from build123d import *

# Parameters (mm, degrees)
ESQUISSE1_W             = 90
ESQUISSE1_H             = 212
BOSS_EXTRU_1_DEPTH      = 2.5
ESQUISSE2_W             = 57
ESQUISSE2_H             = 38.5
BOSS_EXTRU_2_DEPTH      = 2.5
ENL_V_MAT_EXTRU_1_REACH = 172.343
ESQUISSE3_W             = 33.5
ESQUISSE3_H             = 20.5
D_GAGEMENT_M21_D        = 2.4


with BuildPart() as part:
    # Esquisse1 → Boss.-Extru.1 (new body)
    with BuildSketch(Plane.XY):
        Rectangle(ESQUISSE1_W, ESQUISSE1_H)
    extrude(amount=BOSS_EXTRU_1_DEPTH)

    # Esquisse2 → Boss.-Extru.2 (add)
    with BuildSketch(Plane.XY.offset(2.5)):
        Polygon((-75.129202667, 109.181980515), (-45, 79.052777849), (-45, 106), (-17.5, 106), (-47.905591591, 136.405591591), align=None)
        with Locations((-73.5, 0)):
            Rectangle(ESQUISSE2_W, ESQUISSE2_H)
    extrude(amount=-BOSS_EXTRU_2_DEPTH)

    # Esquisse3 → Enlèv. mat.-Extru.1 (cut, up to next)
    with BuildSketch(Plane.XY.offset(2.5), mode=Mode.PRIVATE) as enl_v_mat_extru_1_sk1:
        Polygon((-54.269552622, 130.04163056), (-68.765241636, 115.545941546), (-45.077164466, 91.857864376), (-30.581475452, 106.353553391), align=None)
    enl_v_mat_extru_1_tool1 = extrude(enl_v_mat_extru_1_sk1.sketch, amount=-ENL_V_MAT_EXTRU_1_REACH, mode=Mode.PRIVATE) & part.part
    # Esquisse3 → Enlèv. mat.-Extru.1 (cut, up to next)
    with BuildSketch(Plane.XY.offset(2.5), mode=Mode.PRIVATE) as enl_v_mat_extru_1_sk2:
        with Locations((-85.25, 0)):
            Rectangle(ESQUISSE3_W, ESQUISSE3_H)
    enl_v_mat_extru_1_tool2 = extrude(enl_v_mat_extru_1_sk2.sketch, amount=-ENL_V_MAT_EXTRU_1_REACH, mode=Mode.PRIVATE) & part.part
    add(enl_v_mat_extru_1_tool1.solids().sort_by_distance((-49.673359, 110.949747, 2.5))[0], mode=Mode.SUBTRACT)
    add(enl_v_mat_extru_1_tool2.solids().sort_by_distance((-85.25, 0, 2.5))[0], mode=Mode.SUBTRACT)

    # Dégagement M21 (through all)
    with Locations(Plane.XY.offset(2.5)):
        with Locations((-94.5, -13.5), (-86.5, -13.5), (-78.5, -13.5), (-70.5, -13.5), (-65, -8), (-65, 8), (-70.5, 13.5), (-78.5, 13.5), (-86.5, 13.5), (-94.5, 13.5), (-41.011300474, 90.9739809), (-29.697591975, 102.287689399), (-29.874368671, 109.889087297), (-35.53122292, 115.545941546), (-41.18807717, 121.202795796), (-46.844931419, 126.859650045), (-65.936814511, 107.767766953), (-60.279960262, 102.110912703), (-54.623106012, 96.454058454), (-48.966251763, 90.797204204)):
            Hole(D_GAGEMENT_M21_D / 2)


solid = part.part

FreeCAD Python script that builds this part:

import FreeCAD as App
import Part
import Sketcher
Q = App.Units.Quantity

doc = App.newDocument("Part")
params = doc.addObject("Spreadsheet::Sheet", "Params")
for row, (alias, value) in enumerate([
    ("sketch1_width", "90 mm"),
    ("sketch1_height", "212 mm"),
    ("pad1_length", "2.5 mm"),
    ("sketch2_width", "57 mm"),
    ("sketch2_length", "43 mm"),
    ("sketch2_width2", "27.5 mm"),
    ("sketch2_height", "38.5 mm"),
    ("sketch2_length2", "38.5 mm"),
    ("pad2_length", "2.5 mm"),
    ("sketch3_length", "20.5 mm"),
    ("sketch3_length2", "33.5 mm"),
    ("sketch4_width", "33.5 mm"),
    ("sketch4_height", "20.5 mm"),
    ("sketch5_diameter", "2.4 mm"),
    ("hole_diameter", "2.4 mm"),
], start=1):
    params.set(f"A{row}", alias)
    params.set(f"B{row}", "=" + value)
    params.setAlias(f"B{row}", alias)

body = doc.addObject("PartDesign::Body", "Body")

# Sketch on XY plane
sketch1 = body.newObject("Sketcher::SketchObject", "Sketch")
sketch1.AttachmentSupport = (doc.getObject("XY_Plane"), [""])
sketch1.MapMode = "FlatFace"
sketch1.addGeometry(Part.LineSegment(App.Vector(-45, 106, 0), App.Vector(-45, -106, 0)), False)
sketch1.addGeometry(Part.LineSegment(App.Vector(-45, -106, 0), App.Vector(45, -106, 0)), False)
sketch1.addGeometry(Part.LineSegment(App.Vector(45, -106, 0), App.Vector(45, 106, 0)), False)
sketch1.addGeometry(Part.LineSegment(App.Vector(45, 106, 0), App.Vector(-45, 106, 0)), False)
sketch1.addConstraint(Sketcher.Constraint("Coincident", 0, 2, 1, 1))
sketch1.addConstraint(Sketcher.Constraint("Coincident", 1, 2, 2, 1))
sketch1.addConstraint(Sketcher.Constraint("Coincident", 2, 2, 3, 1))
sketch1.addConstraint(Sketcher.Constraint("Coincident", 3, 2, 0, 1))
sketch1.addConstraint(Sketcher.Constraint("Vertical", 0))
sketch1.addConstraint(Sketcher.Constraint("Horizontal", 1))
sketch1.addConstraint(Sketcher.Constraint("Vertical", 2))
sketch1.addConstraint(Sketcher.Constraint("Horizontal", 3))
sketch1.addConstraint(Sketcher.Constraint("Symmetric", 0, 2, 2, 2, -1, 1))
sketch1.addConstraint(Sketcher.Constraint("DistanceX", 1, 1, 1, 2, 90.0))
sketch1.addConstraint(Sketcher.Constraint("DistanceY", 0, 2, 0, 1, 212.0))
sketch1.setExpression("Constraints[9]", "Params.sketch1_width")
sketch1.setExpression("Constraints[10]", "Params.sketch1_height")
pad1 = body.newObject("PartDesign::Pad", "Pad")
pad1.Profile = sketch1
pad1.setExpression("Length", "Params.pad1_length")

# Sketch on XY plane
sketch2 = body.newObject("Sketcher::SketchObject", "Sketch001")
sketch2.AttachmentSupport = (doc.getObject("XY_Plane"), [""])
sketch2.MapMode = "FlatFace"
sketch2.AttachmentOffset = App.Placement(App.Vector(0, 0, 2.5), App.Rotation())
sketch2.addGeometry(Part.LineSegment(App.Vector(-75.129203, 109.181981, 0), App.Vector(-45, 79.052778, 0)), False)
sketch2.addGeometry(Part.LineSegment(App.Vector(-45, 79.052778, 0), App.Vector(-45, 106, 0)), False)
sketch2.addGeometry(Part.LineSegment(App.Vector(-45, 106, 0), App.Vector(-17.5, 106, 0)), False)
sketch2.addGeometry(Part.LineSegment(App.Vector(-17.5, 106, 0), App.Vector(-47.905592, 136.405592, 0)), False)
sketch2.addGeometry(Part.LineSegment(App.Vector(-47.905592, 136.405592, 0), App.Vector(-75.129203, 109.181981, 0)), False)
sketch2.addGeometry(Part.LineSegment(App.Vector(-102, 19.25, 0), App.Vector(-102, -19.25, 0)), False)
sketch2.addGeometry(Part.LineSegment(App.Vector(-102, -19.25, 0), App.Vector(-45, -19.25, 0)), False)
sketch2.addGeometry(Part.LineSegment(App.Vector(-45, -19.25, 0), App.Vector(-45, 19.25, 0)), False)
sketch2.addGeometry(Part.LineSegment(App.Vector(-45, 19.25, 0), App.Vector(-102, 19.25, 0)), False)
sketch2.addConstraint(Sketcher.Constraint("Coincident", 0, 2, 1, 1))
sketch2.addConstraint(Sketcher.Constraint("Coincident", 1, 2, 2, 1))
sketch2.addConstraint(Sketcher.Constraint("Coincident", 2, 2, 3, 1))
sketch2.addConstraint(Sketcher.Constraint("Coincident", 3, 2, 4, 1))
sketch2.addConstraint(Sketcher.Constraint("Coincident", 4, 2, 0, 1))
sketch2.addConstraint(Sketcher.Constraint("Coincident", 5, 2, 6, 1))
sketch2.addConstraint(Sketcher.Constraint("Coincident", 6, 2, 7, 1))
sketch2.addConstraint(Sketcher.Constraint("Coincident", 7, 2, 8, 1))
sketch2.addConstraint(Sketcher.Constraint("Coincident", 8, 2, 5, 1))
sketch2.addConstraint(Sketcher.Constraint("Vertical", 1))
sketch2.addConstraint(Sketcher.Constraint("Horizontal", 2))
sketch2.addConstraint(Sketcher.Constraint("Vertical", 5))
sketch2.addConstraint(Sketcher.Constraint("Horizontal", 6))
sketch2.addConstraint(Sketcher.Constraint("Vertical", 7))
sketch2.addConstraint(Sketcher.Constraint("Horizontal", 8))
sketch2.addConstraint(Sketcher.Constraint("Parallel", 0, 3))
sketch2.addConstraint(Sketcher.Constraint("Perpendicular", 3, 4))
sketch2.addConstraint(Sketcher.Constraint("Vertical", 1, 2, 6, 2))
sketch2.addConstraint(Sketcher.Constraint("DistanceX", 6, 1, 6, 2, 57.0))
sketch2.addConstraint(Sketcher.Constraint("Angle", 0, Q("-45 deg")))
sketch2.addConstraint(Sketcher.Constraint("Distance", 3, 43.0))
sketch2.addConstraint(Sketcher.Constraint("DistanceX", 2, 1, 2, 2, 27.5))
sketch2.addConstraint(Sketcher.Constraint("DistanceY", 5, 2, 5, 1, 38.5))
sketch2.addConstraint(Sketcher.Constraint("DistanceX", 0, 2, -1, 1, 45.0))
sketch2.addConstraint(Sketcher.Constraint("DistanceY", -1, 1, 1, 2, 106.0))
sketch2.addConstraint(Sketcher.Constraint("Distance", 4, 38.5))
sketch2.addConstraint(Sketcher.Constraint("DistanceY", 5, 2, -1, 1, 19.25))
sketch2.setExpression("Constraints[18]", "Params.sketch2_width")
sketch2.setExpression("Constraints[20]", "Params.sketch2_length")
sketch2.setExpression("Constraints[21]", "Params.sketch2_width2")
sketch2.setExpression("Constraints[22]", "Params.sketch2_height")
sketch2.setExpression("Constraints[25]", "Params.sketch2_length2")
pad2 = body.newObject("PartDesign::Pad", "Pad001")
pad2.Profile = sketch2
pad2.setExpression("Length", "Params.pad2_length")
pad2.Reversed = True

# Sketch on XY plane
sketch3 = body.newObject("Sketcher::SketchObject", "Sketch002")
sketch3.AttachmentSupport = (doc.getObject("XY_Plane"), [""])
sketch3.MapMode = "FlatFace"
sketch3.AttachmentOffset = App.Placement(App.Vector(0, 0, 2.5), App.Rotation())
sketch3.addGeometry(Part.LineSegment(App.Vector(-54.269553, 130.041631, 0), App.Vector(-68.765242, 115.545942, 0)), False)
sketch3.addGeometry(Part.LineSegment(App.Vector(-68.765242, 115.545942, 0), App.Vector(-45.077164, 91.857864, 0)), False)
sketch3.addGeometry(Part.LineSegment(App.Vector(-45.077164, 91.857864, 0), App.Vector(-30.581475, 106.353553, 0)), False)
sketch3.addGeometry(Part.LineSegment(App.Vector(-30.581475, 106.353553, 0), App.Vector(-54.269553, 130.041631, 0)), False)
sketch3.addConstraint(Sketcher.Constraint("Coincident", 0, 2, 1, 1))
sketch3.addConstraint(Sketcher.Constraint("Coincident", 1, 2, 2, 1))
sketch3.addConstraint(Sketcher.Constraint("Coincident", 2, 2, 3, 1))
sketch3.addConstraint(Sketcher.Constraint("Coincident", 3, 2, 0, 1))
sketch3.addConstraint(Sketcher.Constraint("Perpendicular", 0, 1))
sketch3.addConstraint(Sketcher.Constraint("Perpendicular", 1, 2))
sketch3.addConstraint(Sketcher.Constraint("Perpendicular", 2, 3))
sketch3.addConstraint(Sketcher.Constraint("Angle", 0, Q("-135 deg")))
sketch3.addConstraint(Sketcher.Constraint("Distance", 0, 20.5))
sketch3.addConstraint(Sketcher.Constraint("Distance", 1, 33.5))
sketch3.addConstraint(Sketcher.Constraint("DistanceX", 0, 2, -1, 1, 68.765242))
sketch3.addConstraint(Sketcher.Constraint("DistanceY", -1, 1, 0, 2, 115.545942))
sketch3.setExpression("Constraints[8]", "Params.sketch3_length")
sketch3.setExpression("Constraints[9]", "Params.sketch3_length2")
pocket1 = body.newObject("PartDesign::Pocket", "Pocket")
pocket1.Profile = sketch3
pocket1.Type = "UpToFirst"

# Sketch on XY plane
sketch4 = body.newObject("Sketcher::SketchObject", "Sketch003")
sketch4.AttachmentSupport = (doc.getObject("XY_Plane"), [""])
sketch4.MapMode = "FlatFace"
sketch4.AttachmentOffset = App.Placement(App.Vector(0, 0, 2.5), App.Rotation())
sketch4.addGeometry(Part.LineSegment(App.Vector(-102, 10.25, 0), App.Vector(-102, -10.25, 0)), False)
sketch4.addGeometry(Part.LineSegment(App.Vector(-102, -10.25, 0), App.Vector(-68.5, -10.25, 0)), False)
sketch4.addGeometry(Part.LineSegment(App.Vector(-68.5, -10.25, 0), App.Vector(-68.5, 10.25, 0)), False)
sketch4.addGeometry(Part.LineSegment(App.Vector(-68.5, 10.25, 0), App.Vector(-102, 10.25, 0)), False)
sketch4.addConstraint(Sketcher.Constraint("Coincident", 0, 2, 1, 1))
sketch4.addConstraint(Sketcher.Constraint("Coincident", 1, 2, 2, 1))
sketch4.addConstraint(Sketcher.Constraint("Coincident", 2, 2, 3, 1))
sketch4.addConstraint(Sketcher.Constraint("Coincident", 3, 2, 0, 1))
sketch4.addConstraint(Sketcher.Constraint("Vertical", 0))
sketch4.addConstraint(Sketcher.Constraint("Horizontal", 1))
sketch4.addConstraint(Sketcher.Constraint("Vertical", 2))
sketch4.addConstraint(Sketcher.Constraint("Horizontal", 3))
sketch4.addConstraint(Sketcher.Constraint("DistanceX", 1, 1, 1, 2, 33.5))
sketch4.addConstraint(Sketcher.Constraint("DistanceY", 0, 2, 0, 1, 20.5))
sketch4.addConstraint(Sketcher.Constraint("DistanceX", 0, 2, -1, 1, 102.0))
sketch4.addConstraint(Sketcher.Constraint("DistanceY", 0, 2, -1, 1, 10.25))
sketch4.setExpression("Constraints[8]", "Params.sketch4_width")
sketch4.setExpression("Constraints[9]", "Params.sketch4_height")
pocket2 = body.newObject("PartDesign::Pocket", "Pocket001")
pocket2.Profile = sketch4
pocket2.Type = "UpToFirst"

# Sketch on XY plane
sketch5 = body.newObject("Sketcher::SketchObject", "Sketch004")
sketch5.AttachmentSupport = (doc.getObject("XY_Plane"), [""])
sketch5.MapMode = "FlatFace"
sketch5.AttachmentOffset = App.Placement(App.Vector(0, 0, 2.5), App.Rotation())
sketch5.addGeometry(Part.Circle(App.Vector(-94.5, -13.5, 0), App.Vector(0, 0, 1), 1.2), False)
sketch5.addGeometry(Part.Circle(App.Vector(-86.5, -13.5, 0), App.Vector(0, 0, 1), 1.2), False)
sketch5.addGeometry(Part.Circle(App.Vector(-78.5, -13.5, 0), App.Vector(0, 0, 1), 1.2), False)
sketch5.addGeometry(Part.Circle(App.Vector(-70.5, -13.5, 0), App.Vector(0, 0, 1), 1.2), False)
sketch5.addGeometry(Part.Circle(App.Vector(-65, -8, 0), App.Vector(0, 0, 1), 1.2), False)
sketch5.addGeometry(Part.Circle(App.Vector(-65, 8, 0), App.Vector(0, 0, 1), 1.2), False)
sketch5.addGeometry(Part.Circle(App.Vector(-70.5, 13.5, 0), App.Vector(0, 0, 1), 1.2), False)
sketch5.addGeometry(Part.Circle(App.Vector(-78.5, 13.5, 0), App.Vector(0, 0, 1), 1.2), False)
sketch5.addGeometry(Part.Circle(App.Vector(-86.5, 13.5, 0), App.Vector(0, 0, 1), 1.2), False)
sketch5.addGeometry(Part.Circle(App.Vector(-94.5, 13.5, 0), App.Vector(0, 0, 1), 1.2), False)
sketch5.addGeometry(Part.Circle(App.Vector(-41.0113, 90.973981, 0), App.Vector(0, 0, 1), 1.2), False)
sketch5.addGeometry(Part.Circle(App.Vector(-29.697592, 102.287689, 0), App.Vector(0, 0, 1), 1.2), False)
sketch5.addGeometry(Part.Circle(App.Vector(-29.874369, 109.889087, 0), App.Vector(0, 0, 1), 1.2), False)
sketch5.addGeometry(Part.Circle(App.Vector(-35.531223, 115.545942, 0), App.Vector(0, 0, 1), 1.2), False)
sketch5.addGeometry(Part.Circle(App.Vector(-41.188077, 121.202796, 0), App.Vector(0, 0, 1), 1.2), False)
sketch5.addGeometry(Part.Circle(App.Vector(-46.844931, 126.85965, 0), App.Vector(0, 0, 1), 1.2), False)
sketch5.addGeometry(Part.Circle(App.Vector(-65.936815, 107.767767, 0), App.Vector(0, 0, 1), 1.2), False)
sketch5.addGeometry(Part.Circle(App.Vector(-60.27996, 102.110913, 0), App.Vector(0, 0, 1), 1.2), False)
sketch5.addGeometry(Part.Circle(App.Vector(-54.623106, 96.454058, 0), App.Vector(0, 0, 1), 1.2), False)
sketch5.addGeometry(Part.Circle(App.Vector(-48.966252, 90.797204, 0), App.Vector(0, 0, 1), 1.2), False)
sketch5.addConstraint(Sketcher.Constraint("Equal", 0, 1))
sketch5.addConstraint(Sketcher.Constraint("Equal", 1, 2))
sketch5.addConstraint(Sketcher.Constraint("Equal", 2, 3))
sketch5.addConstraint(Sketcher.Constraint("Equal", 3, 4))
sketch5.addConstraint(Sketcher.Constraint("Equal", 4, 5))
sketch5.addConstraint(Sketcher.Constraint("Equal", 5, 6))
sketch5.addConstraint(Sketcher.Constraint("Equal", 6, 7))
sketch5.addConstraint(Sketcher.Constraint("Equal", 7, 8))
sketch5.addConstraint(Sketcher.Constraint("Equal", 8, 9))
sketch5.addConstraint(Sketcher.Constraint("Equal", 9, 10))
sketch5.addConstraint(Sketcher.Constraint("Equal", 10, 11))
sketch5.addConstraint(Sketcher.Constraint("Equal", 11, 12))
sketch5.addConstraint(Sketcher.Constraint("Equal", 12, 13))
sketch5.addConstraint(Sketcher.Constraint("Equal", 13, 14))
sketch5.addConstraint(Sketcher.Constraint("Equal", 14, 15))
sketch5.addConstraint(Sketcher.Constraint("Equal", 15, 16))
sketch5.addConstraint(Sketcher.Constraint("Equal", 16, 17))
sketch5.addConstraint(Sketcher.Constraint("Equal", 17, 18))
sketch5.addConstraint(Sketcher.Constraint("Equal", 18, 19))
sketch5.addConstraint(Sketcher.Constraint("Symmetric", 4, 3, 5, 3, -1))
sketch5.addConstraint(Sketcher.Constraint("Symmetric", 3, 3, 6, 3, -1))
sketch5.addConstraint(Sketcher.Constraint("Symmetric", 2, 3, 7, 3, -1))
sketch5.addConstraint(Sketcher.Constraint("Symmetric", 1, 3, 8, 3, -1))
sketch5.addConstraint(Sketcher.Constraint("Symmetric", 0, 3, 9, 3, -1))
sketch5.addConstraint(Sketcher.Constraint("Horizontal", 0, 3, 1, 3))
sketch5.addConstraint(Sketcher.Constraint("Horizontal", 1, 3, 2, 3))
sketch5.addConstraint(Sketcher.Constraint("Horizontal", 2, 3, 3, 3))
sketch5.addConstraint(Sketcher.Constraint("Diameter", 0, 2.4))
sketch5.addConstraint(Sketcher.Constraint("DistanceX", 4, 3, -1, 1, 65.0))
sketch5.addConstraint(Sketcher.Constraint("DistanceY", 4, 3, -1, 1, 8.0))
sketch5.addConstraint(Sketcher.Constraint("DistanceX", 0, 3, 1, 3, 8.0))
sketch5.addConstraint(Sketcher.Constraint("DistanceX", 1, 3, 2, 3, 8.0))
sketch5.addConstraint(Sketcher.Constraint("DistanceX", 2, 3, 3, 3, 8.0))
sketch5.addConstraint(Sketcher.Constraint("DistanceY", 3, 3, 6, 3, 27.0))
sketch5.addConstraint(Sketcher.Constraint("DistanceX", 0, 3, -1, 1, 94.5))
sketch5.addConstraint(Sketcher.Constraint("DistanceX", 10, 3, -1, 1, 41.0113))
sketch5.addConstraint(Sketcher.Constraint("DistanceY", -1, 1, 10, 3, 90.973981))
sketch5.addConstraint(Sketcher.Constraint("DistanceX", 11, 3, -1, 1, 29.697592))
sketch5.addConstraint(Sketcher.Constraint("DistanceY", -1, 1, 11, 3, 102.287689))
sketch5.addConstraint(Sketcher.Constraint("DistanceX", 12, 3, -1, 1, 29.874369))
sketch5.addConstraint(Sketcher.Constraint("DistanceY", -1, 1, 13, 3, 115.545942))
sketch5.addConstraint(Sketcher.Constraint("DistanceX", 15, 3, -1, 1, 46.844931))
sketch5.addConstraint(Sketcher.Constraint("DistanceY", -1, 1, 15, 3, 126.85965))
sketch5.addConstraint(Sketcher.Constraint("DistanceX", 17, 3, -1, 1, 60.27996))
sketch5.addConstraint(Sketcher.Constraint("DistanceY", -1, 1, 18, 3, 96.454058))
sketch5.addConstraint(Sketcher.Constraint("DistanceX", 19, 3, -1, 1, 48.966252))
sketch5.addConstraint(Sketcher.Constraint("DistanceX", 13, 3, 11, 3, 5.833631))
sketch5.addConstraint(Sketcher.Constraint("DistanceX", 14, 3, 12, 3, 11.313708))
sketch5.addConstraint(Sketcher.Constraint("DistanceY", 12, 3, 14, 3, 11.313708))
sketch5.addConstraint(Sketcher.Constraint("DistanceY", 16, 3, 14, 3, 13.435029))
sketch5.addConstraint(Sketcher.Constraint("DistanceX", 16, 3, 13, 3, 30.405592))
sketch5.addConstraint(Sketcher.Constraint("DistanceY", 10, 3, 17, 3, 11.136932))
sketch5.addConstraint(Sketcher.Constraint("DistanceX", 16, 3, 18, 3, 11.313708))
sketch5.addConstraint(Sketcher.Constraint("DistanceY", 18, 3, 16, 3, 11.313708))
sketch5.addConstraint(Sketcher.Constraint("DistanceY", 19, 3, 17, 3, 11.313708))
sketch5.setExpression("Constraints[27]", "Params.sketch5_diameter")
doc.recompute()
hole = body.newObject("PartDesign::Hole", "Hole")
hole.Profile = sketch5
hole.ThreadType = "None"
hole.setExpression("Diameter", "Params.hole_diameter")
hole.DepthType = "ThroughAll"

doc.recompute()
